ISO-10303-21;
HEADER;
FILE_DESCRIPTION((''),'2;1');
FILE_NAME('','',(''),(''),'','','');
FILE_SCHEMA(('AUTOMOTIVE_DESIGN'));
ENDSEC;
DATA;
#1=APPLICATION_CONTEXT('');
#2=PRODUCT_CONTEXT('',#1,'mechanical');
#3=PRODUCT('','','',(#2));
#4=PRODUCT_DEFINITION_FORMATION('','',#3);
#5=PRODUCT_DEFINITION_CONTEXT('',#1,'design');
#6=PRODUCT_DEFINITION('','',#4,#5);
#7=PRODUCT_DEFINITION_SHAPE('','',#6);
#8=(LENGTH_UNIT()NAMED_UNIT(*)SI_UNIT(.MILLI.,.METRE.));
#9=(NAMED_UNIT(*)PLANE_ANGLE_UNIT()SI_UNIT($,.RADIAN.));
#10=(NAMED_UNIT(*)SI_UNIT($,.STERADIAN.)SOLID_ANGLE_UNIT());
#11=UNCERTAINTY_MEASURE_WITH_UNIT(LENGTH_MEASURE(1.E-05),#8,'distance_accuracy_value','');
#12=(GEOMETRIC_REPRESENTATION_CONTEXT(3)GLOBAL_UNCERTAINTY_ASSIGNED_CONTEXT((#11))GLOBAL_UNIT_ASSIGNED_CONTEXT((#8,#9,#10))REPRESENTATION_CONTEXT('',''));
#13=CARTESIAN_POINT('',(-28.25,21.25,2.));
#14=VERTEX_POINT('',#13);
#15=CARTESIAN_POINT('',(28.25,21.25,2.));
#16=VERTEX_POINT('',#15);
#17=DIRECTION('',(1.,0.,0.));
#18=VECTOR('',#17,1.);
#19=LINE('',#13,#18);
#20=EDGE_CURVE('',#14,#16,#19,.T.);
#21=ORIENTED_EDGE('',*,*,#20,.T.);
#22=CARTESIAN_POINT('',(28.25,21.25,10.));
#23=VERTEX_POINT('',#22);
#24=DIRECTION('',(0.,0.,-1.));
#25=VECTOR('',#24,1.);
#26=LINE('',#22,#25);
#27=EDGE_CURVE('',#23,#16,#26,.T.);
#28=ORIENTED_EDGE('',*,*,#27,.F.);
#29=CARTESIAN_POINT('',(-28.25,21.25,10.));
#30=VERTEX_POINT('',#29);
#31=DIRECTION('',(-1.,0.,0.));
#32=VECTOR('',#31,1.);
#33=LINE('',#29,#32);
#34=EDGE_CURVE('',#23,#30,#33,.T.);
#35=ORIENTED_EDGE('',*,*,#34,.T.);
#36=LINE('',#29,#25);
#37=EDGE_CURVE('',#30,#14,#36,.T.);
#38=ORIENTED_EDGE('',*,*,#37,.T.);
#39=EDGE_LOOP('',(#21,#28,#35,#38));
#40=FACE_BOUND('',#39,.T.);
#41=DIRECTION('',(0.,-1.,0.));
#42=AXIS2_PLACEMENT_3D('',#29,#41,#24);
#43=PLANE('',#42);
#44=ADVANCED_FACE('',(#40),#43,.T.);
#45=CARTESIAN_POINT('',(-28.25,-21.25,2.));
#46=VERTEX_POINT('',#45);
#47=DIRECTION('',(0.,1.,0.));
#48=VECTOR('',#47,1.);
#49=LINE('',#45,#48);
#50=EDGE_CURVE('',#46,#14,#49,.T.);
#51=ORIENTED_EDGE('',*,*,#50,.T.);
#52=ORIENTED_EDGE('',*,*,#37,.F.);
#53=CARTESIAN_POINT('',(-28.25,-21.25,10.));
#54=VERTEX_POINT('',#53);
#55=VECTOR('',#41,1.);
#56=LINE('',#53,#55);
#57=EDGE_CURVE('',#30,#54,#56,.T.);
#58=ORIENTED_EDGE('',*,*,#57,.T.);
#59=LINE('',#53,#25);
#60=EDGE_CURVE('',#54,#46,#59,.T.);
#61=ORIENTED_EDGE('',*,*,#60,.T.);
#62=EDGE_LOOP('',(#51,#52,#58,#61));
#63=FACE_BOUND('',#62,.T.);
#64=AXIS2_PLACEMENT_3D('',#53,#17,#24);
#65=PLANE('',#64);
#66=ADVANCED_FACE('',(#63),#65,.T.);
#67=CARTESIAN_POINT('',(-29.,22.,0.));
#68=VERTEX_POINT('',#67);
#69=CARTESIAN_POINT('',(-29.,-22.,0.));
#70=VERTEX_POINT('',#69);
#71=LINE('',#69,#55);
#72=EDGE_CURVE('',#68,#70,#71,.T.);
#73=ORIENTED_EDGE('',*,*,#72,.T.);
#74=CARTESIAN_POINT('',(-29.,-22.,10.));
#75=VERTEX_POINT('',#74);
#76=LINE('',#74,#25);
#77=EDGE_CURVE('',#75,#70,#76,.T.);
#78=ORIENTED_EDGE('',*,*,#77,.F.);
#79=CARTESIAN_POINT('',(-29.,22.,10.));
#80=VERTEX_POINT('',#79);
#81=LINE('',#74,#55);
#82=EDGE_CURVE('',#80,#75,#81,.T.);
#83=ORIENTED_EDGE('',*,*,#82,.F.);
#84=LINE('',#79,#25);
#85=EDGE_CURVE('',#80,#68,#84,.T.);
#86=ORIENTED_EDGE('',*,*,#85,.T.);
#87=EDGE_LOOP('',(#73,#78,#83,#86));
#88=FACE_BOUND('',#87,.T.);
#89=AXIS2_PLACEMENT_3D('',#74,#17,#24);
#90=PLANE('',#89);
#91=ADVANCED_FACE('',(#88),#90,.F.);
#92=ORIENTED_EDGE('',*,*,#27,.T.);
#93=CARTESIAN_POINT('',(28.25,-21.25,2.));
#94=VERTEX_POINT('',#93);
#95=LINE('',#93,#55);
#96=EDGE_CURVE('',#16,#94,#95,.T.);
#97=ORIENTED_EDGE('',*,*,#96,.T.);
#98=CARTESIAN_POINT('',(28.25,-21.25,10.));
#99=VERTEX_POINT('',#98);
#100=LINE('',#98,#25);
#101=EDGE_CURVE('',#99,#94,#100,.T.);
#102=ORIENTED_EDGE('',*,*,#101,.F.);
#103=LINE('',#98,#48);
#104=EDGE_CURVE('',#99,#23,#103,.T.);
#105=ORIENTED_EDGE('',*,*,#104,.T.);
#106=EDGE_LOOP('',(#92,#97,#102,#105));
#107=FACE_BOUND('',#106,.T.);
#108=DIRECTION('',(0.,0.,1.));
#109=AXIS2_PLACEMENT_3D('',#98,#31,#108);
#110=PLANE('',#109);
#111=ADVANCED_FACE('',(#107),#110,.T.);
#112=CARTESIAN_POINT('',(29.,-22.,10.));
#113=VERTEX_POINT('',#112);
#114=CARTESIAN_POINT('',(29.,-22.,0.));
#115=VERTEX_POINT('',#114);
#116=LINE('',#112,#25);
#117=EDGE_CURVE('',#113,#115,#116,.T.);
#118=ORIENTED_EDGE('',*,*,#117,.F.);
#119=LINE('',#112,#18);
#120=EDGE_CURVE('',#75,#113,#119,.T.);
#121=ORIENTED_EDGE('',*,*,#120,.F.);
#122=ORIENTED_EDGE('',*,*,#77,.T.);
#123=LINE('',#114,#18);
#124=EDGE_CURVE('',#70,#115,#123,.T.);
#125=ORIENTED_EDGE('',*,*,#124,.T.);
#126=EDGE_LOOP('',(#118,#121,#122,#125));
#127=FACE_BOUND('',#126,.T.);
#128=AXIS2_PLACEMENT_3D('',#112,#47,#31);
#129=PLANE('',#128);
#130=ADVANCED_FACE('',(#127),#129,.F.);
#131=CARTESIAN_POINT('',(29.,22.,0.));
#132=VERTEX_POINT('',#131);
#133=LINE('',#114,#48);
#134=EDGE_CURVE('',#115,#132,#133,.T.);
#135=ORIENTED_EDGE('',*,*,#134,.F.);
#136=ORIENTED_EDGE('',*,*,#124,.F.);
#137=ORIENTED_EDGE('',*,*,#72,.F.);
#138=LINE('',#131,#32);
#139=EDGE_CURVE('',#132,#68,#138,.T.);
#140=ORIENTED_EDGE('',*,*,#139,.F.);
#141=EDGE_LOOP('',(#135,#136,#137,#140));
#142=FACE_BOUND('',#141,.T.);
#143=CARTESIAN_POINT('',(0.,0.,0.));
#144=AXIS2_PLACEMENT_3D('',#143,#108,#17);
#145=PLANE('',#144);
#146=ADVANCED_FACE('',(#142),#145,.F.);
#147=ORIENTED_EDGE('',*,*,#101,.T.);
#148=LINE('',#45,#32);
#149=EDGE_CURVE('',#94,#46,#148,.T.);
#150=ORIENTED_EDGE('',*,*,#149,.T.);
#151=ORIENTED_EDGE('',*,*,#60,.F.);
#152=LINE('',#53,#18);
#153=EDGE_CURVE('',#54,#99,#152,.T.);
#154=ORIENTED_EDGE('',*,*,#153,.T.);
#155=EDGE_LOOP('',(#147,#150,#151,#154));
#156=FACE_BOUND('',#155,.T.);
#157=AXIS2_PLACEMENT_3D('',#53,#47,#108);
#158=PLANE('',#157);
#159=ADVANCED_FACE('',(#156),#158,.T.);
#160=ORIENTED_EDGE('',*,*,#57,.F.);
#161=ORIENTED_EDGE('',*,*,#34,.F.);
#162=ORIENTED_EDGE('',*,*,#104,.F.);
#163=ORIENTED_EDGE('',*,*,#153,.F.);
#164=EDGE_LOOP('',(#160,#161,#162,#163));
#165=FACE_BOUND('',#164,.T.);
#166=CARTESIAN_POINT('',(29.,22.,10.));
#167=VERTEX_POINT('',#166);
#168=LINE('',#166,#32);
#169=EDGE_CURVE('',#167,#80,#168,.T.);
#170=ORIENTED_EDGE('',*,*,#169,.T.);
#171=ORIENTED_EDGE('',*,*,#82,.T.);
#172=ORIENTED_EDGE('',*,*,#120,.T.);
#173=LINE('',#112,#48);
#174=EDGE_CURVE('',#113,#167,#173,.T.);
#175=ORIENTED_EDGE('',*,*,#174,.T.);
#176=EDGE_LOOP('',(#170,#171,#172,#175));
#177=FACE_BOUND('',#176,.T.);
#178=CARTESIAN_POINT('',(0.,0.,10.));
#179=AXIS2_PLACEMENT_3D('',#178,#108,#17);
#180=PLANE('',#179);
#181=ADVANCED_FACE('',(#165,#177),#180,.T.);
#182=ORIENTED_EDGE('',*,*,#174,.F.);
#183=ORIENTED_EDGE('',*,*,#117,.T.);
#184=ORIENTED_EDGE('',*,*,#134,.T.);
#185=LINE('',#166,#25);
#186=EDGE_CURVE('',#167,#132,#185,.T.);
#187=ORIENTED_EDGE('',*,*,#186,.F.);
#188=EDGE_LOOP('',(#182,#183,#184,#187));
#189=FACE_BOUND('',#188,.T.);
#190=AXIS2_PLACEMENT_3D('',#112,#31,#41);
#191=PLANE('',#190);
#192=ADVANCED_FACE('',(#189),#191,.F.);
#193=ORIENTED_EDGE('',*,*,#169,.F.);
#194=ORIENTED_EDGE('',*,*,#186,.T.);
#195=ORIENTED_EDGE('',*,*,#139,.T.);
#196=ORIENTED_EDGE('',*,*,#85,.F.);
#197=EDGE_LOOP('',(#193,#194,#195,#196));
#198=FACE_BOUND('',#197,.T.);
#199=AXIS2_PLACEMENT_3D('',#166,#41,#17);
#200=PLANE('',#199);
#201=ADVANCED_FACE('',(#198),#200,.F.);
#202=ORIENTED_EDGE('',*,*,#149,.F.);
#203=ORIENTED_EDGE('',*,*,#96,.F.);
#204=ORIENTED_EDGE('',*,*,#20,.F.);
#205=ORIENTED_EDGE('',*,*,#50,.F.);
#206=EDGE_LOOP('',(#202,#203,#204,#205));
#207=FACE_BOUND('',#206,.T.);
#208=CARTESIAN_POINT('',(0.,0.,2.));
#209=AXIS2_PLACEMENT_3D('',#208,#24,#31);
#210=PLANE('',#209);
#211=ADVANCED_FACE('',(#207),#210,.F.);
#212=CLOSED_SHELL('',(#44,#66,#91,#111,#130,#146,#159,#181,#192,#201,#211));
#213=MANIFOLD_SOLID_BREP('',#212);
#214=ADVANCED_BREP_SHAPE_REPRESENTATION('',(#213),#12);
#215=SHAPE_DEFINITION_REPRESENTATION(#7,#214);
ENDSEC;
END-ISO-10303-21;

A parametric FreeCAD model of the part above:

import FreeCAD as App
import Part
import Sketcher

V = App.Vector


def add_polygon(sketch, points):
    """Adds a closed chain of lines whose ends are joined by coincident constraints."""
    first, n = sketch.GeometryCount, len(points)
    for a, b in zip(points, points[1:] + points[:1]):
        sketch.addGeometry(Part.LineSegment(App.Vector(*a, 0), App.Vector(*b, 0)), False)
    for i in range(n):
        sketch.addConstraint(Sketcher.Constraint("Coincident", first + i, 2, first + (i + 1) % n, 1))

doc = App.newDocument("Part")
params = doc.addObject("Spreadsheet::Sheet", "Params")
for row, (alias, value) in enumerate([
    ("sketch1_width", "58 mm"),
    ("sketch1_height", "44 mm"),
    ("sketch1_width2", "56.5 mm"),
    ("sketch1_height2", "42.5 mm"),
    ("pad1_length", "10 mm"),
    ("sketch2_width", "58 mm"),
    ("sketch2_height", "44 mm"),
    ("pad2_length", "2 mm"),
], start=1):
    params.set(f"A{row}", alias)
    params.set(f"B{row}", "=" + value)
    params.setAlias(f"B{row}", alias)

body = doc.addObject("PartDesign::Body", "Body")

sketch1 = body.newObject("Sketcher::SketchObject", "Sketch")
sketch1.AttachmentSupport = (doc.getObject("XY_Plane"), [""])
sketch1.MapMode = "FlatFace"
add_polygon(sketch1, [(-29, 22), (-29, -22), (29, -22), (29, 22)])
add_polygon(sketch1, [(28.25, -21.25), (-28.25, -21.25), (-28.25, 21.25), (28.25, 21.25)])
sketch1.addConstraint(Sketcher.Constraint("Vertical", 0))
sketch1.addConstraint(Sketcher.Constraint("Horizontal", 1))
sketch1.addConstraint(Sketcher.Constraint("Vertical", 2))
sketch1.addConstraint(Sketcher.Constraint("Horizontal", 3))
sketch1.addConstraint(Sketcher.Constraint("Horizontal", 4))
sketch1.addConstraint(Sketcher.Constraint("Vertical", 5))
sketch1.addConstraint(Sketcher.Constraint("Horizontal", 6))
sketch1.addConstraint(Sketcher.Constraint("Vertical", 7))
sketch1.addConstraint(Sketcher.Constraint("Symmetric", 0, 2, 2, 2, -1, 1))
sketch1.addConstraint(Sketcher.Constraint("Symmetric", 4, 2, 6, 2, -1, 1))
sketch1.addConstraint(Sketcher.Constraint("DistanceX", 1, 1, 1, 2, 58.0))
sketch1.addConstraint(Sketcher.Constraint("DistanceY", 0, 2, 0, 1, 44.0))
sketch1.addConstraint(Sketcher.Constraint("DistanceX", 4, 2, 4, 1, 56.5))
sketch1.addConstraint(Sketcher.Constraint("DistanceY", 5, 1, 5, 2, 42.5))
sketch1.setExpression("Constraints[18]", "Params.sketch1_width")
sketch1.setExpression("Constraints[19]", "Params.sketch1_height")
sketch1.setExpression("Constraints[20]", "Params.sketch1_width2")
sketch1.setExpression("Constraints[21]", "Params.sketch1_height2")
pad1 = body.newObject("PartDesign::Pad", "Pad")
pad1.Profile = sketch1
pad1.setExpression("Length", "Params.pad1_length")

sketch2 = body.newObject("Sketcher::SketchObject", "Sketch001")
sketch2.AttachmentSupport = (doc.getObject("XY_Plane"), [""])
sketch2.MapMode = "FlatFace"
add_polygon(sketch2, [(-29, 22), (-29, -22), (29, -22), (29, 22)])
sketch2.addConstraint(Sketcher.Constraint("Vertical", 0))
sketch2.addConstraint(Sketcher.Constraint("Horizontal", 1))
sketch2.addConstraint(Sketcher.Constraint("Vertical", 2))
sketch2.addConstraint(Sketcher.Constraint("Horizontal", 3))
sketch2.addConstraint(Sketcher.Constraint("Symmetric", 0, 2, 2, 2, -1, 1))
sketch2.addConstraint(Sketcher.Constraint("DistanceX", 1, 1, 1, 2, 58.0))
sketch2.addConstraint(Sketcher.Constraint("DistanceY", 0, 2, 0, 1, 44.0))
sketch2.setExpression("Constraints[9]", "Params.sketch2_width")
sketch2.setExpression("Constraints[10]", "Params.sketch2_height")
pad2 = body.newObject("PartDesign::Pad", "Pad001")
pad2.Profile = sketch2
pad2.setExpression("Length", "Params.pad2_length")

doc.recompute()
